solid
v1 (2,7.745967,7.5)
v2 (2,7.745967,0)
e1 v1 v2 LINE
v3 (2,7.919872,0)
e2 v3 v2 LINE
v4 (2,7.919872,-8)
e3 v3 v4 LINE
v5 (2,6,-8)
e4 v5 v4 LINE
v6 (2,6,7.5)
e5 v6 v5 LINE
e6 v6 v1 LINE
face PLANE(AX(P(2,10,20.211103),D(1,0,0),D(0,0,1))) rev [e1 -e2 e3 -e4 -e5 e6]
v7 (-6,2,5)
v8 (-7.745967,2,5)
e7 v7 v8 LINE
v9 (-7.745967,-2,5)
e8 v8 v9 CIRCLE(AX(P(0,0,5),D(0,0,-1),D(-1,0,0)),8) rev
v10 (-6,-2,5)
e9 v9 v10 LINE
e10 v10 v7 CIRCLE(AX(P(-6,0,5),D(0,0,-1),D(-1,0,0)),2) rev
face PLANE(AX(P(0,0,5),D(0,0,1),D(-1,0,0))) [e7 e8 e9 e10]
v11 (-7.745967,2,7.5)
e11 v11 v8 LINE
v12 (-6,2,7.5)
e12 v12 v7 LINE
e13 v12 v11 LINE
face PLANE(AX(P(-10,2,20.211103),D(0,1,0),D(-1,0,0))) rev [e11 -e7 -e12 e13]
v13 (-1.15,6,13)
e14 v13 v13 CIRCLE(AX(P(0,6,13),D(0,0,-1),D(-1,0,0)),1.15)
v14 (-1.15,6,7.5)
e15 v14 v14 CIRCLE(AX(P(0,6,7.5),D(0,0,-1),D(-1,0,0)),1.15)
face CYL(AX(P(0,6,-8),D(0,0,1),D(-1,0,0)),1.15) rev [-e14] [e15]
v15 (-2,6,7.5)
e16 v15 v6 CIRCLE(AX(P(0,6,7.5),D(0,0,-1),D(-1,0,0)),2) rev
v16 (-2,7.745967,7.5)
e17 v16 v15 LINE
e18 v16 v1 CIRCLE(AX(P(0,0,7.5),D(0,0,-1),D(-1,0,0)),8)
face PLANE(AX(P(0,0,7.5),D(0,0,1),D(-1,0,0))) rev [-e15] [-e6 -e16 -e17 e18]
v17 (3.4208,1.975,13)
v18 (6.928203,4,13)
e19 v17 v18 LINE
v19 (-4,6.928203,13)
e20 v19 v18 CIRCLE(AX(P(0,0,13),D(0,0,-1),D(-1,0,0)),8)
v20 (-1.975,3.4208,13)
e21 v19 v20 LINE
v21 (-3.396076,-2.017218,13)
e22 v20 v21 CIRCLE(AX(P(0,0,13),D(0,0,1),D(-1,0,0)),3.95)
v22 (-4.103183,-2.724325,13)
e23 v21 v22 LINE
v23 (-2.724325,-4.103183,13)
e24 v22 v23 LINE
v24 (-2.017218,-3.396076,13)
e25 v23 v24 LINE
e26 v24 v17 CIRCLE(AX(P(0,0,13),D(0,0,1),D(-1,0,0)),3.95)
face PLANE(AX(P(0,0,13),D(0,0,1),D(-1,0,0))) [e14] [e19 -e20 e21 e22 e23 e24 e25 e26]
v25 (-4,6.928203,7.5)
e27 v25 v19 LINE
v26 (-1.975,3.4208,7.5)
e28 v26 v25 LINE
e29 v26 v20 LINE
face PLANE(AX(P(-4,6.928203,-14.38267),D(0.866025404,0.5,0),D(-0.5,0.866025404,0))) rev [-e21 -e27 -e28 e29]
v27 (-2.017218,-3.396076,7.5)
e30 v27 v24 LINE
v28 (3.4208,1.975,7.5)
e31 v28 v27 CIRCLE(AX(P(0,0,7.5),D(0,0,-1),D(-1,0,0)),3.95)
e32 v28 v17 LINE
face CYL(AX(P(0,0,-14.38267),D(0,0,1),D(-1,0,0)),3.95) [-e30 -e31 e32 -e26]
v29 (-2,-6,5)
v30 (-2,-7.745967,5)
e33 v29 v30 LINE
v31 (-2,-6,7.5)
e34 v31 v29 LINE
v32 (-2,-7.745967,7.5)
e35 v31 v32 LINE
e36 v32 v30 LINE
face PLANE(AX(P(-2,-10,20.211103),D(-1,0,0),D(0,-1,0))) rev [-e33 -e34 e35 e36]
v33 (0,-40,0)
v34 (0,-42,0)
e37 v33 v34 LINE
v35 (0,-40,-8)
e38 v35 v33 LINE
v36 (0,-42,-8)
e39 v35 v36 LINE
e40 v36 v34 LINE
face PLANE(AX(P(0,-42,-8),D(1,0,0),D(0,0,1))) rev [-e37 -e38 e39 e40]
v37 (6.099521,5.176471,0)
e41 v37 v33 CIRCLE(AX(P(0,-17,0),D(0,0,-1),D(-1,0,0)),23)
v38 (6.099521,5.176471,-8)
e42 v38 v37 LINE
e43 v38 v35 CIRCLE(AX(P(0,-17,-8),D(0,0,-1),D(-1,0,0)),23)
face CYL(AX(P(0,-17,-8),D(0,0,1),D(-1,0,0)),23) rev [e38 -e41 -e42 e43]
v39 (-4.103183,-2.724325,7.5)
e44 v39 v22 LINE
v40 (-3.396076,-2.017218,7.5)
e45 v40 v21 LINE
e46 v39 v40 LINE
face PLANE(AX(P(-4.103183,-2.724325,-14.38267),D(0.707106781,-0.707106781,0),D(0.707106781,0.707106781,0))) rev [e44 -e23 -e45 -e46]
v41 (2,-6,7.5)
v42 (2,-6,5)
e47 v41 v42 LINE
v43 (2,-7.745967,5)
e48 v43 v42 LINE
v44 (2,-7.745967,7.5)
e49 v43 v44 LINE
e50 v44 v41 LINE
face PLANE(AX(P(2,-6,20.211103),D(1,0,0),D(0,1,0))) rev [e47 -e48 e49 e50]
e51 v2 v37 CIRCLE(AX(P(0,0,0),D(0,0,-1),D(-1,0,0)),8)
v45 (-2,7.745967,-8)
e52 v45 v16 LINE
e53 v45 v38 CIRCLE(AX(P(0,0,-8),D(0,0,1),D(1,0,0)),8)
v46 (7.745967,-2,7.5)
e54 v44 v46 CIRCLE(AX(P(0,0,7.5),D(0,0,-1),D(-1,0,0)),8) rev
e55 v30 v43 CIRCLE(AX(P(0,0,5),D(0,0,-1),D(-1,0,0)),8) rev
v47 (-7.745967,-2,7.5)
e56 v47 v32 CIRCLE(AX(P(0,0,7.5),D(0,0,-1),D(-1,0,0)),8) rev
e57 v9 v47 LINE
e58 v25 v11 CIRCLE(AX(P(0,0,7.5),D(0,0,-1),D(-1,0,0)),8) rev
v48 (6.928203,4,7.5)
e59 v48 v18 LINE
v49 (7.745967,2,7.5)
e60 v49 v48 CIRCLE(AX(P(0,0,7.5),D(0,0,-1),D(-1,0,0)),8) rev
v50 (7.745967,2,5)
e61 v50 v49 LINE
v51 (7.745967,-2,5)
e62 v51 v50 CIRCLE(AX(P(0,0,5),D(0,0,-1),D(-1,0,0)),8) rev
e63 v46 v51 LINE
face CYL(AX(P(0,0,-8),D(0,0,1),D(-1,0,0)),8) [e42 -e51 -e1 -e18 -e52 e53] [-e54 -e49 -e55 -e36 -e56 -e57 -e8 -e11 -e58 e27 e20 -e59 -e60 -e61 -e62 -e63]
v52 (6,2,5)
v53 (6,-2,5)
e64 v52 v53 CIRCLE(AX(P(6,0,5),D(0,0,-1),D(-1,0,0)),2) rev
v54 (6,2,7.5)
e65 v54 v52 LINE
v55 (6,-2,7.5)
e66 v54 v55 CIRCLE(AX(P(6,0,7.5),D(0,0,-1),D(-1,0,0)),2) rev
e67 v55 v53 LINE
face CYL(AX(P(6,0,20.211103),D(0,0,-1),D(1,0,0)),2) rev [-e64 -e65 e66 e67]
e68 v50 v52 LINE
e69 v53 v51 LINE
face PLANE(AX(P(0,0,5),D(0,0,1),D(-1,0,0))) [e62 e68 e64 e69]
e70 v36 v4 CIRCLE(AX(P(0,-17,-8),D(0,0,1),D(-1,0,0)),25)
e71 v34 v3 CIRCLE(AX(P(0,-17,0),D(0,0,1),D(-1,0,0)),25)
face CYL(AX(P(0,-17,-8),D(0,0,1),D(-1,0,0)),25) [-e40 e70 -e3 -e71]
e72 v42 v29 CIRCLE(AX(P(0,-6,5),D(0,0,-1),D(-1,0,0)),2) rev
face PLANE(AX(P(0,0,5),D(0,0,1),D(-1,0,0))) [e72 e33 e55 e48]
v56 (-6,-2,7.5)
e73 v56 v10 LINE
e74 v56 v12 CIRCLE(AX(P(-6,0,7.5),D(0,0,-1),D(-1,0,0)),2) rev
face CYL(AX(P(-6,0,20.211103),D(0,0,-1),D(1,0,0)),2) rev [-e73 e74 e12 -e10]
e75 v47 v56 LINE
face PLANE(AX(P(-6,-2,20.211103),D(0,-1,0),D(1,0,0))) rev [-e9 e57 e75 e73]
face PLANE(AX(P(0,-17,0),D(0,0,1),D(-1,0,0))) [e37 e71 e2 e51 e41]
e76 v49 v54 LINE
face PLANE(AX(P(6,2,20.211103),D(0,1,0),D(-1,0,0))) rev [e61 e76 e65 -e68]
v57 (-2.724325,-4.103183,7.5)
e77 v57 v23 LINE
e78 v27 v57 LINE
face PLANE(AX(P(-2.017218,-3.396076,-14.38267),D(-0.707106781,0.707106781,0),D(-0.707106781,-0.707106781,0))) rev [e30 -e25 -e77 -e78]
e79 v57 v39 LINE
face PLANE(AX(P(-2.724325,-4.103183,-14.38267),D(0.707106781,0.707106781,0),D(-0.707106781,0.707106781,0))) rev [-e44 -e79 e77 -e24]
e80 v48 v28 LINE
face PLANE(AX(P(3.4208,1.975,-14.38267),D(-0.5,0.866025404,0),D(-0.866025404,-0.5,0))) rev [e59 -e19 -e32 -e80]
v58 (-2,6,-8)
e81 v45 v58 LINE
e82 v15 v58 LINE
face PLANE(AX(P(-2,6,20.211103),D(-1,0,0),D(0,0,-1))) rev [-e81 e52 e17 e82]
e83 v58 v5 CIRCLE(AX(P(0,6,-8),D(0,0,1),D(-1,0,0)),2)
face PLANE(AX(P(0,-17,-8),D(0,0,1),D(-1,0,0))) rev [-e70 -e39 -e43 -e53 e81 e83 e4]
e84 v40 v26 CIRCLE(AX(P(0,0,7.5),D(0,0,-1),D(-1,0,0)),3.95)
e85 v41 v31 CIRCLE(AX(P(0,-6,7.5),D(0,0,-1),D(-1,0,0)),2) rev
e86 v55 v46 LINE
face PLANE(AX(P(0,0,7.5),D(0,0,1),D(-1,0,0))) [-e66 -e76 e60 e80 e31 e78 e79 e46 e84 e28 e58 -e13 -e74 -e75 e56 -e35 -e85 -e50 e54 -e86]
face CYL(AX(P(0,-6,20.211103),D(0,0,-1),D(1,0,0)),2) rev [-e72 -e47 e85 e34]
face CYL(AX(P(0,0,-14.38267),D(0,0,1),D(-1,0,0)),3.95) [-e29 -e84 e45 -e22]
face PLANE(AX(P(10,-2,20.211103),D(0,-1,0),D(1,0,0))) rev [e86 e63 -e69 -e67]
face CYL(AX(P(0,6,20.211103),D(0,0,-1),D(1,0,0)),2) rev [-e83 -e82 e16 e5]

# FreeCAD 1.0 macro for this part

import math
import FreeCAD as App
import Part
import Sketcher
from FreeCAD import Vector
Q = App.Units.Quantity

doc = App.newDocument("Part")
body = doc.addObject("PartDesign::Body", "Body")

# Sketch on XY plane
sketch1 = body.newObject("Sketcher::SketchObject", "Sketch")
sketch1.AttachmentSupport = (doc.getObject("XY_Plane"), [""])
sketch1.MapMode = "FlatFace"
sketch1.addGeometry([
    Part.LineSegment(Vector(0, -40, 0), Vector(0, -42, 0)),  # 0
    Part.ArcOfCircle(Part.Circle(Vector(0, -17, 0), Vector(0, 0, 1), 25), math.radians(-90), math.radians(90)),  # 1
    Part.ArcOfCircle(Part.Circle(Vector(0, 0, 0), Vector(0, 0, 1), 8), math.radians(90), math.radians(270)),  # 2
    Part.ArcOfCircle(Part.Circle(Vector(0, 0, 0), Vector(0, 0, 1), 8), math.radians(-90), math.radians(40.320215)),  # 3
    Part.ArcOfCircle(Part.Circle(Vector(0, -17, 0), Vector(0, 0, 1), 23), math.radians(-90), math.radians(74.621368)),  # 4
    Part.Circle(Vector(6, 0, 0), Vector(0, 0, 1), 1.15),  # 5
    Part.Circle(Vector(0, -6, 0), Vector(0, 0, 1), 1.15),  # 6
    Part.Circle(Vector(-6, 0, 0), Vector(0, 0, 1), 1.15),  # 7
    Part.Circle(Vector(0, 6, 0), Vector(0, 0, 1), 1.15),  # 8
], False)
sketch1.addConstraint([
    Sketcher.Constraint("Coincident", 0, 2, 1, 1),
    Sketcher.Constraint("Tangent", 1, 2, 2, 1),
    Sketcher.Constraint("Tangent", 2, 2, 3, 1),
    Sketcher.Constraint("Coincident", 3, 2, 4, 2),
    Sketcher.Constraint("Coincident", 4, 1, 0, 1),
    Sketcher.Constraint("Vertical", 0),
    Sketcher.Constraint("Coincident", 2, 3, -1, 1),
    Sketcher.Constraint("Coincident", 4, 3, 1, 3),
    Sketcher.Constraint("Equal", 2, 3),
    Sketcher.Constraint("Equal", 5, 6),
    Sketcher.Constraint("Equal", 6, 7),
    Sketcher.Constraint("Equal", 7, 8),
    Sketcher.Constraint("Symmetric", 5, 3, 7, 3, -1, 1),
    Sketcher.Constraint("Symmetric", 6, 3, 8, 3, -1, 1),
    Sketcher.Constraint("PointOnObject", 1, 3, -2),
    Sketcher.Constraint("PointOnObject", 5, 3, -1),
    Sketcher.Constraint("PointOnObject", 6, 3, -2),
    Sketcher.Constraint("PointOnObject", 0, 2, -2),
    Sketcher.Constraint("PointOnObject", 2, 2, -2),
    Sketcher.Constraint("Radius", 1, Q("25 mm")),
    Sketcher.Constraint("Radius", 2, Q("8 mm")),
    Sketcher.Constraint("Radius", 4, Q("23 mm")),
    Sketcher.Constraint("Diameter", 5, Q("2.3 mm")),
    Sketcher.Constraint("DistanceX", -1, 1, 5, 3, Q("6 mm")),
    Sketcher.Constraint("DistanceY", 6, 3, -1, 1, Q("6 mm")),
])
pad1 = body.newObject("PartDesign::Pad", "Pad")
pad1.Profile = sketch1
pad1.Length = 8

# Sketch on XY plane
sketch2 = body.newObject("Sketcher::SketchObject", "Sketch001")
sketch2.AttachmentSupport = (doc.getObject("XY_Plane"), [""])
sketch2.MapMode = "FlatFace"
sketch2.AttachmentOffset = App.Placement(Vector(0, 0, -13), App.Rotation())
sketch2.addGeometry([
    Part.Circle(Vector(0, 0, 0), Vector(0, 0, 1), 8),  # 0
    Part.Circle(Vector(0, -6, 0), Vector(0, 0, 1), 1.15),  # 1
    Part.Circle(Vector(6, 0, 0), Vector(0, 0, 1), 1.15),  # 2
    Part.Circle(Vector(0, 6, 0), Vector(0, 0, 1), 1.15),  # 3
    Part.Circle(Vector(-6, 0, 0), Vector(0, 0, 1), 1.15),  # 4
], False)
sketch2.addConstraint([
    Sketcher.Constraint("Coincident", 0, 3, -1, 1),
    Sketcher.Constraint("Equal", 1, 2),
    Sketcher.Constraint("Equal", 2, 3),
    Sketcher.Constraint("Equal", 3, 4),
    Sketcher.Constraint("Symmetric", 1, 3, 3, 3, -1, 1),
    Sketcher.Constraint("Symmetric", 2, 3, 4, 3, -1, 1),
    Sketcher.Constraint("PointOnObject", 1, 3, -2),
    Sketcher.Constraint("PointOnObject", 2, 3, -1),
    Sketcher.Constraint("Diameter", 0, Q("16 mm")),
    Sketcher.Constraint("Diameter", 1, Q("2.3 mm")),
    Sketcher.Constraint("DistanceY", 1, 3, -1, 1, Q("6 mm")),
    Sketcher.Constraint("DistanceX", -1, 1, 2, 3, Q("6 mm")),
])
pad2 = body.newObject("PartDesign::Pad", "Pad001")
pad2.Profile = sketch2
pad2.Length = 13

# Sketch on XY plane
sketch3 = body.newObject("Sketcher::SketchObject", "Sketch002")
sketch3.AttachmentSupport = (doc.getObject("XY_Plane"), [""])
sketch3.MapMode = "FlatFace"
sketch3.AttachmentOffset = App.Placement(Vector(0, 0, 8), App.Rotation())
sketch3.addGeometry([
    Part.LineSegment(Vector(10, 2, 0), Vector(6, 2, 0)),  # 0
    Part.ArcOfCircle(Part.Circle(Vector(6, 0, 0), Vector(0, 0, 1), 2), math.radians(90), math.radians(270)),  # 1
    Part.LineSegment(Vector(6, -2, 0), Vector(10, -2, 0)),  # 2
    Part.LineSegment(Vector(10, -2, 0), Vector(10, 2, 0)),  # 3
    Part.LineSegment(Vector(2, -10, 0), Vector(2, -6, 0)),  # 4
    Part.ArcOfCircle(Part.Circle(Vector(0, -6, 0), Vector(0, 0, 1), 2), math.radians(0), math.radians(180)),  # 5
    Part.LineSegment(Vector(-2, -6, 0), Vector(-2, -10, 0)),  # 6
    Part.LineSegment(Vector(-2, -10, 0), Vector(2, -10, 0)),  # 7
    Part.LineSegment(Vector(-10, -2, 0), Vector(-6, -2, 0)),  # 8
    Part.ArcOfCircle(Part.Circle(Vector(-6, 0, 0), Vector(0, 0, 1), 2), math.radians(-90), math.radians(90)),  # 9
    Part.LineSegment(Vector(-6, 2, 0), Vector(-10, 2, 0)),  # 10
    Part.LineSegment(Vector(-10, 2, 0), Vector(-10, -2, 0)),  # 11
    Part.LineSegment(Vector(-2, 10, 0), Vector(-2, 6, 0)),  # 12
    Part.ArcOfCircle(Part.Circle(Vector(0, 6, 0), Vector(0, 0, 1), 2), math.radians(180), math.radians(360)),  # 13
    Part.LineSegment(Vector(2, 6, 0), Vector(2, 10, 0)),  # 14
    Part.LineSegment(Vector(2, 10, 0), Vector(-2, 10, 0)),  # 15
], False)
sketch3.addConstraint([
    Sketcher.Constraint("Tangent", 0, 2, 1, 1),
    Sketcher.Constraint("Tangent", 1, 2, 2, 1),
    Sketcher.Constraint("Coincident", 2, 2, 3, 1),
    Sketcher.Constraint("Coincident", 3, 2, 0, 1),
    Sketcher.Constraint("Tangent", 4, 2, 5, 1),
    Sketcher.Constraint("Tangent", 5, 2, 6, 1),
    Sketcher.Constraint("Coincident", 6, 2, 7, 1),
    Sketcher.Constraint("Coincident", 7, 2, 4, 1),
    Sketcher.Constraint("Tangent", 8, 2, 9, 1),
    Sketcher.Constraint("Tangent", 9, 2, 10, 1),
    Sketcher.Constraint("Coincident", 10, 2, 11, 1),
    Sketcher.Constraint("Coincident", 11, 2, 8, 1),
    Sketcher.Constraint("Tangent", 12, 2, 13, 1),
    Sketcher.Constraint("Tangent", 13, 2, 14, 1),
    Sketcher.Constraint("Coincident", 14, 2, 15, 1),
    Sketcher.Constraint("Coincident", 15, 2, 12, 1),
    Sketcher.Constraint("Horizontal", 0),
    Sketcher.Constraint("Horizontal", 2),
    Sketcher.Constraint("Vertical", 3),
    Sketcher.Constraint("Vertical", 4),
    Sketcher.Constraint("Vertical", 6),
    Sketcher.Constraint("Horizontal", 7),
    Sketcher.Constraint("Horizontal", 8),
    Sketcher.Constraint("Horizontal", 10),
    Sketcher.Constraint("Vertical", 11),
    Sketcher.Constraint("Vertical", 12),
    Sketcher.Constraint("Vertical", 14),
    Sketcher.Constraint("Horizontal", 15),
    Sketcher.Constraint("Equal", 1, 5),
    Sketcher.Constraint("Equal", 5, 9),
    Sketcher.Constraint("Equal", 9, 13),
    Sketcher.Constraint("Symmetric", 1, 3, 9, 3, -1, 1),
    Sketcher.Constraint("Symmetric", 5, 3, 13, 3, -1, 1),
    Sketcher.Constraint("Symmetric", 3, 2, 10, 2, -2),
    Sketcher.Constraint("Symmetric", 7, 2, 14, 2, -1),
    Sketcher.Constraint("Equal", 2, 7),
    Sketcher.Constraint("Equal", 3, 4),
    Sketcher.Constraint("Radius", 1, Q("2 mm")),
    Sketcher.Constraint("DistanceX", -1, 1, 1, 3, Q("6 mm")),
    Sketcher.Constraint("DistanceY", 5, 3, -1, 1, Q("6 mm")),
])
pocket1 = body.newObject("PartDesign::Pocket", "Pocket")
pocket1.Profile = sketch3
pocket1.Length = 15.5

# Sketch on XY plane
sketch4 = body.newObject("Sketcher::SketchObject", "Sketch003")
sketch4.AttachmentSupport = (doc.getObject("XY_Plane"), [""])
sketch4.MapMode = "FlatFace"
sketch4.AttachmentOffset = App.Placement(Vector(0, 0, -13), App.Rotation())
sketch4.addGeometry([
    Part.LineSegment(Vector(3.4208, 1.975, 0), Vector(6.928203, 4, 0)),  # 0
    Part.ArcOfCircle(Part.Circle(Vector(0, 0, 0), Vector(0, 0, 1), 8), math.radians(120), math.radians(390)),  # 1
    Part.LineSegment(Vector(-4, 6.928203, 0), Vector(-1.975, 3.4208, 0)),  # 2
    Part.ArcOfCircle(Part.Circle(Vector(0, 0, 0), Vector(0, 0, 1), 3.95), math.radians(120), math.radians(210.709671)),  # 3
    Part.LineSegment(Vector(-3.396076, -2.017218, 0), Vector(-4.103183, -2.724325, 0)),  # 4
    Part.LineSegment(Vector(-4.103183, -2.724325, 0), Vector(-2.724325, -4.103183, 0)),  # 5
    Part.LineSegment(Vector(-2.724325, -4.103183, 0), Vector(-2.017218, -3.396076, 0)),  # 6
    Part.ArcOfCircle(Part.Circle(Vector(0, 0, 0), Vector(0, 0, 1), 3.95), math.radians(-120.709671), math.radians(30)),  # 7
], False)
sketch4.addConstraint([
    Sketcher.Constraint("Coincident", 0, 2, 1, 2),
    Sketcher.Constraint("Coincident", 1, 1, 2, 1),
    Sketcher.Constraint("Coincident", 2, 2, 3, 1),
    Sketcher.Constraint("Coincident", 3, 2, 4, 1),
    Sketcher.Constraint("Coincident", 4, 2, 5, 1),
    Sketcher.Constraint("Coincident", 5, 2, 6, 1),
    Sketcher.Constraint("Coincident", 6, 2, 7, 1),
    Sketcher.Constraint("Coincident", 7, 2, 0, 1),
    Sketcher.Constraint("Coincident", 1, 3, -1, 1),
    Sketcher.Constraint("Coincident", 3, 3, -1, 1),
    Sketcher.Constraint("Coincident", 7, 3, -1, 1),
    Sketcher.Constraint("Equal", 3, 7),
    Sketcher.Constraint("Perpendicular", 0, 2),
    Sketcher.Constraint("Perpendicular", 4, 5),
    Sketcher.Constraint("Perpendicular", 5, 6),
    Sketcher.Constraint("Equal", 4, 6),
    Sketcher.Constraint("Radius", 1, Q("8 mm")),
    Sketcher.Constraint("Angle", 0, Q("30 deg")),
    Sketcher.Constraint("Angle", 4, Q("-135 deg")),
    Sketcher.Constraint("Radius", 3, Q("3.95 mm")),
    Sketcher.Constraint("Distance", 4, Q("1 mm")),
    Sketcher.Constraint("DistanceY", -1, 1, 0, 2, Q("4 mm")),
    Sketcher.Constraint("DistanceX", 1, 1, -1, 1, Q("4 mm")),
    Sketcher.Constraint("Distance", 5, Q("1.95 mm")),
])
pocket2 = body.newObject("PartDesign::Pocket", "Pocket001")
pocket2.Profile = sketch4
pocket2.Length = 5.5
pocket2.Reversed = True

# Sketch on XY plane
sketch5 = body.newObject("Sketcher::SketchObject", "Sketch004")
sketch5.AttachmentSupport = (doc.getObject("XY_Plane"), [""])
sketch5.MapMode = "FlatFace"
sketch5.AttachmentOffset = App.Placement(Vector(0, 0, -5), App.Rotation())
sketch5.addGeometry([
    Part.LineSegment(Vector(5.656854, 5.656854, 0), Vector(0, 0, 0)),
    Part.LineSegment(Vector(0, 0, 0), Vector(-5.656854, 5.656854, 0)),
    Part.ArcOfCircle(Part.Circle(Vector(0, 0, 0), Vector(0, 0, 1), 8), math.radians(135), math.radians(405)),
], False)
sketch5.addConstraint([
    Sketcher.Constraint("Coincident", 0, 2, 1, 1),
    Sketcher.Constraint("Coincident", 1, 2, 2, 1),
    Sketcher.Constraint("Coincident", 2, 2, 0, 1),
    Sketcher.Constraint("Coincident", 2, 3, -1, 1),
    Sketcher.Constraint("Coincident", 0, 2, -1, 1),
    Sketcher.Constraint("Perpendicular", 0, 1),
    Sketcher.Constraint("Horizontal", 1, 2, 2, 2),
    Sketcher.Constraint("Radius", 2, Q("8 mm")),
])
pad3 = body.newObject("PartDesign::Pad", "Pad002")
pad3.Profile = sketch5
pad3.Length = 13
body2 = doc.addObject("PartDesign::Body", "Body001")
doc.recompute()

mirroring = doc.addObject("Part::Mirroring", "Mirroring")
mirroring.Source = body
mirroring.Base = Vector(0, 0, 0)
mirroring.Normal = Vector(0, 0, 1)
body2.BaseFeature = mirroring
doc.recompute()
body.Visibility = False
mirroring.Visibility = False

doc.recompute()
